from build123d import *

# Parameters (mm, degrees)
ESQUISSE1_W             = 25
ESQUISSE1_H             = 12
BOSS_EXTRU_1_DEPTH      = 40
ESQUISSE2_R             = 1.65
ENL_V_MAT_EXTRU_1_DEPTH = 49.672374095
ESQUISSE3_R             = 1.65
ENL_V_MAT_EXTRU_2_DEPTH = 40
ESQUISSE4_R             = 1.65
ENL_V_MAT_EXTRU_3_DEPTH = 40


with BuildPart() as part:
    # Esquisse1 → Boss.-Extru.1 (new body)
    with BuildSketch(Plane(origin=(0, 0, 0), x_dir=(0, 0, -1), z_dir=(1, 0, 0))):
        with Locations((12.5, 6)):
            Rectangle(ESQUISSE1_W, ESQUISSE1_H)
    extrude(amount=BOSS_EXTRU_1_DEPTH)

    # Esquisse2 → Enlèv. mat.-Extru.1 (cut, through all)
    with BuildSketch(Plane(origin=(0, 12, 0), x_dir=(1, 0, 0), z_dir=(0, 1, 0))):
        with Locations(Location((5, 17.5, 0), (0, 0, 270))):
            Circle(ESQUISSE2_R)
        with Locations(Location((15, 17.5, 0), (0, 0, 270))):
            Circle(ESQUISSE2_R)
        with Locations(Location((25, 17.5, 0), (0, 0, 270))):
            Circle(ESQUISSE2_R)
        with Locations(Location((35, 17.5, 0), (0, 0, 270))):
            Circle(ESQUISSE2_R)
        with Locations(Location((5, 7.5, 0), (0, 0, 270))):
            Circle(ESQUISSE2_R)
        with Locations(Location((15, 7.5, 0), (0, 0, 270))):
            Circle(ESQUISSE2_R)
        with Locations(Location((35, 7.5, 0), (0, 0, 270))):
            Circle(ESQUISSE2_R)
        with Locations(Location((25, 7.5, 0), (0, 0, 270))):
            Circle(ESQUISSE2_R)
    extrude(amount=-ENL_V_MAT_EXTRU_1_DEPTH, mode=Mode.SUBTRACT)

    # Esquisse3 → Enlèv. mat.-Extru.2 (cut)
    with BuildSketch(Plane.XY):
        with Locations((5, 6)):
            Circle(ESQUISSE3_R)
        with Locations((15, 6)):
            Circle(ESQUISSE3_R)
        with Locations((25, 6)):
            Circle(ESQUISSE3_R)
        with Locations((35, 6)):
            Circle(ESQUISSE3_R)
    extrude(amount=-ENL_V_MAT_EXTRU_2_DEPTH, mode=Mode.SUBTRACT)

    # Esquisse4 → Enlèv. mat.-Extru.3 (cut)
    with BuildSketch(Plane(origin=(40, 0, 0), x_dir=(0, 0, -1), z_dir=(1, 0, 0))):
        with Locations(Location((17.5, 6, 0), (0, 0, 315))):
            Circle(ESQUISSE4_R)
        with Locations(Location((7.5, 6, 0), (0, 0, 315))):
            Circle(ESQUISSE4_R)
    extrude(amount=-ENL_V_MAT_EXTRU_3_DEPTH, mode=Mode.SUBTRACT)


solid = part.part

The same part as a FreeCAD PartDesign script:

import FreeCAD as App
import Part
import Sketcher
from FreeCAD import Vector


def add_polygon(sketch, points):
    """Adds a closed chain of lines whose ends are joined by coincident constraints."""
    first, n = sketch.GeometryCount, len(points)
    for a, b in zip(points, points[1:] + points[:1]):
        sketch.addGeometry(Part.LineSegment(App.Vector(*a, 0), App.Vector(*b, 0)), False)
    for i in range(n):
        sketch.addConstraint(Sketcher.Constraint("Coincident", first + i, 2, first + (i + 1) % n, 1))

doc = App.newDocument("Part")
body = doc.addObject("PartDesign::Body", "Body")

# Sketch on YZ plane
sketch1 = body.newObject("Sketcher::SketchObject", "Sketch")
sketch1.AttachmentSupport = (doc.getObject("YZ_Plane"), [""])
sketch1.MapMode = "FlatFace"
add_polygon(sketch1, [(12, 0), (0, 0), (0, -25), (12, -25)])  # lines 0-3
sketch1.addConstraint(Sketcher.Constraint("Horizontal", 0))
sketch1.addConstraint(Sketcher.Constraint("Vertical", 1))
sketch1.addConstraint(Sketcher.Constraint("Horizontal", 2))
sketch1.addConstraint(Sketcher.Constraint("Vertical", 3))
sketch1.addConstraint(Sketcher.Constraint("Coincident", 0, 2, -1, 1))
sketch1.addConstraint(Sketcher.Constraint("DistanceX", 0, 2, 0, 1, 12.0))
sketch1.addConstraint(Sketcher.Constraint("DistanceY", 1, 2, 1, 1, 25.0))
pad1 = body.newObject("PartDesign::Pad", "Pad")
pad1.Profile = sketch1
pad1.Length = 40

# Sketch on XZ plane
sketch2 = body.newObject("Sketcher::SketchObject", "Sketch001")
sketch2.AttachmentSupport = (doc.getObject("XZ_Plane"), [""])
sketch2.MapMode = "FlatFace"
sketch2.AttachmentOffset = App.Placement(Vector(0, 0, -12), App.Rotation())
sketch2.addGeometry(Part.Circle(Vector(5, -17.5, 0), Vector(0, 0, 1), 1.6), False)
sketch2.addGeometry(Part.Circle(Vector(15, -17.5, 0), Vector(0, 0, 1), 1.6), False)
sketch2.addGeometry(Part.Circle(Vector(25, -17.5, 0), Vector(0, 0, 1), 1.6), False)
sketch2.addGeometry(Part.Circle(Vector(35, -17.5, 0), Vector(0, 0, 1), 1.6), False)
sketch2.addGeometry(Part.Circle(Vector(5, -7.5, 0), Vector(0, 0, 1), 1.6), False)
sketch2.addGeometry(Part.Circle(Vector(15, -7.5, 0), Vector(0, 0, 1), 1.6), False)
sketch2.addGeometry(Part.Circle(Vector(35, -7.5, 0), Vector(0, 0, 1), 1.6), False)
sketch2.addGeometry(Part.Circle(Vector(25, -7.5, 0), Vector(0, 0, 1), 1.6), False)
sketch2.addConstraint(Sketcher.Constraint("Equal", 0, 1))
sketch2.addConstraint(Sketcher.Constraint("Equal", 1, 2))
sketch2.addConstraint(Sketcher.Constraint("Equal", 2, 3))
sketch2.addConstraint(Sketcher.Constraint("Equal", 3, 4))
sketch2.addConstraint(Sketcher.Constraint("Equal", 4, 5))
sketch2.addConstraint(Sketcher.Constraint("Equal", 5, 6))
sketch2.addConstraint(Sketcher.Constraint("Equal", 6, 7))
sketch2.addConstraint(Sketcher.Constraint("Horizontal", 0, 3, 1, 3))
sketch2.addConstraint(Sketcher.Constraint("Horizontal", 1, 3, 2, 3))
sketch2.addConstraint(Sketcher.Constraint("Horizontal", 2, 3, 3, 3))
sketch2.addConstraint(Sketcher.Constraint("Horizontal", 4, 3, 5, 3))
sketch2.addConstraint(Sketcher.Constraint("Horizontal", 5, 3, 6, 3))
sketch2.addConstraint(Sketcher.Constraint("Horizontal", 6, 3, 7, 3))
sketch2.addConstraint(Sketcher.Constraint("Vertical", 0, 3, 4, 3))
sketch2.addConstraint(Sketcher.Constraint("Vertical", 1, 3, 5, 3))
sketch2.addConstraint(Sketcher.Constraint("Vertical", 3, 3, 6, 3))
sketch2.addConstraint(Sketcher.Constraint("Vertical", 2, 3, 7, 3))
sketch2.addConstraint(Sketcher.Constraint("Diameter", 0, 3.3))
sketch2.addConstraint(Sketcher.Constraint("DistanceX", -1, 1, 0, 3, 5.0))
sketch2.addConstraint(Sketcher.Constraint("DistanceX", -1, 1, 1, 3, 15.0))
sketch2.addConstraint(Sketcher.Constraint("DistanceX", -1, 1, 2, 3, 25.0))
sketch2.addConstraint(Sketcher.Constraint("DistanceX", -1, 1, 3, 3, 35.0))
sketch2.addConstraint(Sketcher.Constraint("DistanceY", 0, 3, 4, 3, 10.0))
sketch2.addConstraint(Sketcher.Constraint("DistanceY", 0, 3, -1, 1, 17.5))
pocket1 = body.newObject("PartDesign::Pocket", "Pocket")
pocket1.Profile = sketch2
pocket1.Type = "ThroughAll"
pocket1.Reversed = True

# Sketch on XY plane
sketch3 = body.newObject("Sketcher::SketchObject", "Sketch002")
sketch3.AttachmentSupport = (doc.getObject("XY_Plane"), [""])
sketch3.MapMode = "FlatFace"
sketch3.addGeometry(Part.Circle(Vector(5, 6, 0), Vector(0, 0, 1), 1.6), False)
sketch3.addGeometry(Part.Circle(Vector(15, 6, 0), Vector(0, 0, 1), 1.6), False)
sketch3.addGeometry(Part.Circle(Vector(25, 6, 0), Vector(0, 0, 1), 1.6), False)
sketch3.addGeometry(Part.Circle(Vector(35, 6, 0), Vector(0, 0, 1), 1.6), False)
sketch3.addConstraint(Sketcher.Constraint("Equal", 0, 1))
sketch3.addConstraint(Sketcher.Constraint("Equal", 1, 2))
sketch3.addConstraint(Sketcher.Constraint("Equal", 2, 3))
sketch3.addConstraint(Sketcher.Constraint("Horizontal", 0, 3, 1, 3))
sketch3.addConstraint(Sketcher.Constraint("Horizontal", 1, 3, 2, 3))
sketch3.addConstraint(Sketcher.Constraint("Horizontal", 2, 3, 3, 3))
sketch3.addConstraint(Sketcher.Constraint("Diameter", 0, 3.3))
sketch3.addConstraint(Sketcher.Constraint("DistanceX", -1, 1, 0, 3, 5.0))
sketch3.addConstraint(Sketcher.Constraint("DistanceY", -1, 1, 0, 3, 6.0))
sketch3.addConstraint(Sketcher.Constraint("DistanceX", -1, 1, 1, 3, 15.0))
sketch3.addConstraint(Sketcher.Constraint("DistanceX", -1, 1, 2, 3, 25.0))
sketch3.addConstraint(Sketcher.Constraint("DistanceX", -1, 1, 3, 3, 35.0))
pocket2 = body.newObject("PartDesign::Pocket", "Pocket001")
pocket2.Profile = sketch3
pocket2.Length = 40

# Sketch on YZ plane
sketch4 = body.newObject("Sketcher::SketchObject", "Sketch003")
sketch4.AttachmentSupport = (doc.getObject("YZ_Plane"), [""])
sketch4.MapMode = "FlatFace"
sketch4.AttachmentOffset = App.Placement(Vector(0, 0, 40), App.Rotation())
sketch4.addGeometry(Part.Circle(Vector(6, -17.5, 0), Vector(0, 0, 1), 1.6), False)
sketch4.addGeometry(Part.Circle(Vector(6, -7.5, 0), Vector(0, 0, 1), 1.6), False)
sketch4.addConstraint(Sketcher.Constraint("Equal", 0, 1))
sketch4.addConstraint(Sketcher.Constraint("Vertical", 0, 3, 1, 3))
sketch4.addConstraint(Sketcher.Constraint("Diameter", 0, 3.3))
sketch4.addConstraint(Sketcher.Constraint("DistanceX", -1, 1, 0, 3, 6.0))
sketch4.addConstraint(Sketcher.Constraint("DistanceY", 0, 3, 1, 3, 10.0))
sketch4.addConstraint(Sketcher.Constraint("DistanceY", 0, 3, -1, 1, 17.5))
pocket3 = body.newObject("PartDesign::Pocket", "Pocket002")
pocket3.Profile = sketch4
pocket3.Length = 40

doc.recompute()
